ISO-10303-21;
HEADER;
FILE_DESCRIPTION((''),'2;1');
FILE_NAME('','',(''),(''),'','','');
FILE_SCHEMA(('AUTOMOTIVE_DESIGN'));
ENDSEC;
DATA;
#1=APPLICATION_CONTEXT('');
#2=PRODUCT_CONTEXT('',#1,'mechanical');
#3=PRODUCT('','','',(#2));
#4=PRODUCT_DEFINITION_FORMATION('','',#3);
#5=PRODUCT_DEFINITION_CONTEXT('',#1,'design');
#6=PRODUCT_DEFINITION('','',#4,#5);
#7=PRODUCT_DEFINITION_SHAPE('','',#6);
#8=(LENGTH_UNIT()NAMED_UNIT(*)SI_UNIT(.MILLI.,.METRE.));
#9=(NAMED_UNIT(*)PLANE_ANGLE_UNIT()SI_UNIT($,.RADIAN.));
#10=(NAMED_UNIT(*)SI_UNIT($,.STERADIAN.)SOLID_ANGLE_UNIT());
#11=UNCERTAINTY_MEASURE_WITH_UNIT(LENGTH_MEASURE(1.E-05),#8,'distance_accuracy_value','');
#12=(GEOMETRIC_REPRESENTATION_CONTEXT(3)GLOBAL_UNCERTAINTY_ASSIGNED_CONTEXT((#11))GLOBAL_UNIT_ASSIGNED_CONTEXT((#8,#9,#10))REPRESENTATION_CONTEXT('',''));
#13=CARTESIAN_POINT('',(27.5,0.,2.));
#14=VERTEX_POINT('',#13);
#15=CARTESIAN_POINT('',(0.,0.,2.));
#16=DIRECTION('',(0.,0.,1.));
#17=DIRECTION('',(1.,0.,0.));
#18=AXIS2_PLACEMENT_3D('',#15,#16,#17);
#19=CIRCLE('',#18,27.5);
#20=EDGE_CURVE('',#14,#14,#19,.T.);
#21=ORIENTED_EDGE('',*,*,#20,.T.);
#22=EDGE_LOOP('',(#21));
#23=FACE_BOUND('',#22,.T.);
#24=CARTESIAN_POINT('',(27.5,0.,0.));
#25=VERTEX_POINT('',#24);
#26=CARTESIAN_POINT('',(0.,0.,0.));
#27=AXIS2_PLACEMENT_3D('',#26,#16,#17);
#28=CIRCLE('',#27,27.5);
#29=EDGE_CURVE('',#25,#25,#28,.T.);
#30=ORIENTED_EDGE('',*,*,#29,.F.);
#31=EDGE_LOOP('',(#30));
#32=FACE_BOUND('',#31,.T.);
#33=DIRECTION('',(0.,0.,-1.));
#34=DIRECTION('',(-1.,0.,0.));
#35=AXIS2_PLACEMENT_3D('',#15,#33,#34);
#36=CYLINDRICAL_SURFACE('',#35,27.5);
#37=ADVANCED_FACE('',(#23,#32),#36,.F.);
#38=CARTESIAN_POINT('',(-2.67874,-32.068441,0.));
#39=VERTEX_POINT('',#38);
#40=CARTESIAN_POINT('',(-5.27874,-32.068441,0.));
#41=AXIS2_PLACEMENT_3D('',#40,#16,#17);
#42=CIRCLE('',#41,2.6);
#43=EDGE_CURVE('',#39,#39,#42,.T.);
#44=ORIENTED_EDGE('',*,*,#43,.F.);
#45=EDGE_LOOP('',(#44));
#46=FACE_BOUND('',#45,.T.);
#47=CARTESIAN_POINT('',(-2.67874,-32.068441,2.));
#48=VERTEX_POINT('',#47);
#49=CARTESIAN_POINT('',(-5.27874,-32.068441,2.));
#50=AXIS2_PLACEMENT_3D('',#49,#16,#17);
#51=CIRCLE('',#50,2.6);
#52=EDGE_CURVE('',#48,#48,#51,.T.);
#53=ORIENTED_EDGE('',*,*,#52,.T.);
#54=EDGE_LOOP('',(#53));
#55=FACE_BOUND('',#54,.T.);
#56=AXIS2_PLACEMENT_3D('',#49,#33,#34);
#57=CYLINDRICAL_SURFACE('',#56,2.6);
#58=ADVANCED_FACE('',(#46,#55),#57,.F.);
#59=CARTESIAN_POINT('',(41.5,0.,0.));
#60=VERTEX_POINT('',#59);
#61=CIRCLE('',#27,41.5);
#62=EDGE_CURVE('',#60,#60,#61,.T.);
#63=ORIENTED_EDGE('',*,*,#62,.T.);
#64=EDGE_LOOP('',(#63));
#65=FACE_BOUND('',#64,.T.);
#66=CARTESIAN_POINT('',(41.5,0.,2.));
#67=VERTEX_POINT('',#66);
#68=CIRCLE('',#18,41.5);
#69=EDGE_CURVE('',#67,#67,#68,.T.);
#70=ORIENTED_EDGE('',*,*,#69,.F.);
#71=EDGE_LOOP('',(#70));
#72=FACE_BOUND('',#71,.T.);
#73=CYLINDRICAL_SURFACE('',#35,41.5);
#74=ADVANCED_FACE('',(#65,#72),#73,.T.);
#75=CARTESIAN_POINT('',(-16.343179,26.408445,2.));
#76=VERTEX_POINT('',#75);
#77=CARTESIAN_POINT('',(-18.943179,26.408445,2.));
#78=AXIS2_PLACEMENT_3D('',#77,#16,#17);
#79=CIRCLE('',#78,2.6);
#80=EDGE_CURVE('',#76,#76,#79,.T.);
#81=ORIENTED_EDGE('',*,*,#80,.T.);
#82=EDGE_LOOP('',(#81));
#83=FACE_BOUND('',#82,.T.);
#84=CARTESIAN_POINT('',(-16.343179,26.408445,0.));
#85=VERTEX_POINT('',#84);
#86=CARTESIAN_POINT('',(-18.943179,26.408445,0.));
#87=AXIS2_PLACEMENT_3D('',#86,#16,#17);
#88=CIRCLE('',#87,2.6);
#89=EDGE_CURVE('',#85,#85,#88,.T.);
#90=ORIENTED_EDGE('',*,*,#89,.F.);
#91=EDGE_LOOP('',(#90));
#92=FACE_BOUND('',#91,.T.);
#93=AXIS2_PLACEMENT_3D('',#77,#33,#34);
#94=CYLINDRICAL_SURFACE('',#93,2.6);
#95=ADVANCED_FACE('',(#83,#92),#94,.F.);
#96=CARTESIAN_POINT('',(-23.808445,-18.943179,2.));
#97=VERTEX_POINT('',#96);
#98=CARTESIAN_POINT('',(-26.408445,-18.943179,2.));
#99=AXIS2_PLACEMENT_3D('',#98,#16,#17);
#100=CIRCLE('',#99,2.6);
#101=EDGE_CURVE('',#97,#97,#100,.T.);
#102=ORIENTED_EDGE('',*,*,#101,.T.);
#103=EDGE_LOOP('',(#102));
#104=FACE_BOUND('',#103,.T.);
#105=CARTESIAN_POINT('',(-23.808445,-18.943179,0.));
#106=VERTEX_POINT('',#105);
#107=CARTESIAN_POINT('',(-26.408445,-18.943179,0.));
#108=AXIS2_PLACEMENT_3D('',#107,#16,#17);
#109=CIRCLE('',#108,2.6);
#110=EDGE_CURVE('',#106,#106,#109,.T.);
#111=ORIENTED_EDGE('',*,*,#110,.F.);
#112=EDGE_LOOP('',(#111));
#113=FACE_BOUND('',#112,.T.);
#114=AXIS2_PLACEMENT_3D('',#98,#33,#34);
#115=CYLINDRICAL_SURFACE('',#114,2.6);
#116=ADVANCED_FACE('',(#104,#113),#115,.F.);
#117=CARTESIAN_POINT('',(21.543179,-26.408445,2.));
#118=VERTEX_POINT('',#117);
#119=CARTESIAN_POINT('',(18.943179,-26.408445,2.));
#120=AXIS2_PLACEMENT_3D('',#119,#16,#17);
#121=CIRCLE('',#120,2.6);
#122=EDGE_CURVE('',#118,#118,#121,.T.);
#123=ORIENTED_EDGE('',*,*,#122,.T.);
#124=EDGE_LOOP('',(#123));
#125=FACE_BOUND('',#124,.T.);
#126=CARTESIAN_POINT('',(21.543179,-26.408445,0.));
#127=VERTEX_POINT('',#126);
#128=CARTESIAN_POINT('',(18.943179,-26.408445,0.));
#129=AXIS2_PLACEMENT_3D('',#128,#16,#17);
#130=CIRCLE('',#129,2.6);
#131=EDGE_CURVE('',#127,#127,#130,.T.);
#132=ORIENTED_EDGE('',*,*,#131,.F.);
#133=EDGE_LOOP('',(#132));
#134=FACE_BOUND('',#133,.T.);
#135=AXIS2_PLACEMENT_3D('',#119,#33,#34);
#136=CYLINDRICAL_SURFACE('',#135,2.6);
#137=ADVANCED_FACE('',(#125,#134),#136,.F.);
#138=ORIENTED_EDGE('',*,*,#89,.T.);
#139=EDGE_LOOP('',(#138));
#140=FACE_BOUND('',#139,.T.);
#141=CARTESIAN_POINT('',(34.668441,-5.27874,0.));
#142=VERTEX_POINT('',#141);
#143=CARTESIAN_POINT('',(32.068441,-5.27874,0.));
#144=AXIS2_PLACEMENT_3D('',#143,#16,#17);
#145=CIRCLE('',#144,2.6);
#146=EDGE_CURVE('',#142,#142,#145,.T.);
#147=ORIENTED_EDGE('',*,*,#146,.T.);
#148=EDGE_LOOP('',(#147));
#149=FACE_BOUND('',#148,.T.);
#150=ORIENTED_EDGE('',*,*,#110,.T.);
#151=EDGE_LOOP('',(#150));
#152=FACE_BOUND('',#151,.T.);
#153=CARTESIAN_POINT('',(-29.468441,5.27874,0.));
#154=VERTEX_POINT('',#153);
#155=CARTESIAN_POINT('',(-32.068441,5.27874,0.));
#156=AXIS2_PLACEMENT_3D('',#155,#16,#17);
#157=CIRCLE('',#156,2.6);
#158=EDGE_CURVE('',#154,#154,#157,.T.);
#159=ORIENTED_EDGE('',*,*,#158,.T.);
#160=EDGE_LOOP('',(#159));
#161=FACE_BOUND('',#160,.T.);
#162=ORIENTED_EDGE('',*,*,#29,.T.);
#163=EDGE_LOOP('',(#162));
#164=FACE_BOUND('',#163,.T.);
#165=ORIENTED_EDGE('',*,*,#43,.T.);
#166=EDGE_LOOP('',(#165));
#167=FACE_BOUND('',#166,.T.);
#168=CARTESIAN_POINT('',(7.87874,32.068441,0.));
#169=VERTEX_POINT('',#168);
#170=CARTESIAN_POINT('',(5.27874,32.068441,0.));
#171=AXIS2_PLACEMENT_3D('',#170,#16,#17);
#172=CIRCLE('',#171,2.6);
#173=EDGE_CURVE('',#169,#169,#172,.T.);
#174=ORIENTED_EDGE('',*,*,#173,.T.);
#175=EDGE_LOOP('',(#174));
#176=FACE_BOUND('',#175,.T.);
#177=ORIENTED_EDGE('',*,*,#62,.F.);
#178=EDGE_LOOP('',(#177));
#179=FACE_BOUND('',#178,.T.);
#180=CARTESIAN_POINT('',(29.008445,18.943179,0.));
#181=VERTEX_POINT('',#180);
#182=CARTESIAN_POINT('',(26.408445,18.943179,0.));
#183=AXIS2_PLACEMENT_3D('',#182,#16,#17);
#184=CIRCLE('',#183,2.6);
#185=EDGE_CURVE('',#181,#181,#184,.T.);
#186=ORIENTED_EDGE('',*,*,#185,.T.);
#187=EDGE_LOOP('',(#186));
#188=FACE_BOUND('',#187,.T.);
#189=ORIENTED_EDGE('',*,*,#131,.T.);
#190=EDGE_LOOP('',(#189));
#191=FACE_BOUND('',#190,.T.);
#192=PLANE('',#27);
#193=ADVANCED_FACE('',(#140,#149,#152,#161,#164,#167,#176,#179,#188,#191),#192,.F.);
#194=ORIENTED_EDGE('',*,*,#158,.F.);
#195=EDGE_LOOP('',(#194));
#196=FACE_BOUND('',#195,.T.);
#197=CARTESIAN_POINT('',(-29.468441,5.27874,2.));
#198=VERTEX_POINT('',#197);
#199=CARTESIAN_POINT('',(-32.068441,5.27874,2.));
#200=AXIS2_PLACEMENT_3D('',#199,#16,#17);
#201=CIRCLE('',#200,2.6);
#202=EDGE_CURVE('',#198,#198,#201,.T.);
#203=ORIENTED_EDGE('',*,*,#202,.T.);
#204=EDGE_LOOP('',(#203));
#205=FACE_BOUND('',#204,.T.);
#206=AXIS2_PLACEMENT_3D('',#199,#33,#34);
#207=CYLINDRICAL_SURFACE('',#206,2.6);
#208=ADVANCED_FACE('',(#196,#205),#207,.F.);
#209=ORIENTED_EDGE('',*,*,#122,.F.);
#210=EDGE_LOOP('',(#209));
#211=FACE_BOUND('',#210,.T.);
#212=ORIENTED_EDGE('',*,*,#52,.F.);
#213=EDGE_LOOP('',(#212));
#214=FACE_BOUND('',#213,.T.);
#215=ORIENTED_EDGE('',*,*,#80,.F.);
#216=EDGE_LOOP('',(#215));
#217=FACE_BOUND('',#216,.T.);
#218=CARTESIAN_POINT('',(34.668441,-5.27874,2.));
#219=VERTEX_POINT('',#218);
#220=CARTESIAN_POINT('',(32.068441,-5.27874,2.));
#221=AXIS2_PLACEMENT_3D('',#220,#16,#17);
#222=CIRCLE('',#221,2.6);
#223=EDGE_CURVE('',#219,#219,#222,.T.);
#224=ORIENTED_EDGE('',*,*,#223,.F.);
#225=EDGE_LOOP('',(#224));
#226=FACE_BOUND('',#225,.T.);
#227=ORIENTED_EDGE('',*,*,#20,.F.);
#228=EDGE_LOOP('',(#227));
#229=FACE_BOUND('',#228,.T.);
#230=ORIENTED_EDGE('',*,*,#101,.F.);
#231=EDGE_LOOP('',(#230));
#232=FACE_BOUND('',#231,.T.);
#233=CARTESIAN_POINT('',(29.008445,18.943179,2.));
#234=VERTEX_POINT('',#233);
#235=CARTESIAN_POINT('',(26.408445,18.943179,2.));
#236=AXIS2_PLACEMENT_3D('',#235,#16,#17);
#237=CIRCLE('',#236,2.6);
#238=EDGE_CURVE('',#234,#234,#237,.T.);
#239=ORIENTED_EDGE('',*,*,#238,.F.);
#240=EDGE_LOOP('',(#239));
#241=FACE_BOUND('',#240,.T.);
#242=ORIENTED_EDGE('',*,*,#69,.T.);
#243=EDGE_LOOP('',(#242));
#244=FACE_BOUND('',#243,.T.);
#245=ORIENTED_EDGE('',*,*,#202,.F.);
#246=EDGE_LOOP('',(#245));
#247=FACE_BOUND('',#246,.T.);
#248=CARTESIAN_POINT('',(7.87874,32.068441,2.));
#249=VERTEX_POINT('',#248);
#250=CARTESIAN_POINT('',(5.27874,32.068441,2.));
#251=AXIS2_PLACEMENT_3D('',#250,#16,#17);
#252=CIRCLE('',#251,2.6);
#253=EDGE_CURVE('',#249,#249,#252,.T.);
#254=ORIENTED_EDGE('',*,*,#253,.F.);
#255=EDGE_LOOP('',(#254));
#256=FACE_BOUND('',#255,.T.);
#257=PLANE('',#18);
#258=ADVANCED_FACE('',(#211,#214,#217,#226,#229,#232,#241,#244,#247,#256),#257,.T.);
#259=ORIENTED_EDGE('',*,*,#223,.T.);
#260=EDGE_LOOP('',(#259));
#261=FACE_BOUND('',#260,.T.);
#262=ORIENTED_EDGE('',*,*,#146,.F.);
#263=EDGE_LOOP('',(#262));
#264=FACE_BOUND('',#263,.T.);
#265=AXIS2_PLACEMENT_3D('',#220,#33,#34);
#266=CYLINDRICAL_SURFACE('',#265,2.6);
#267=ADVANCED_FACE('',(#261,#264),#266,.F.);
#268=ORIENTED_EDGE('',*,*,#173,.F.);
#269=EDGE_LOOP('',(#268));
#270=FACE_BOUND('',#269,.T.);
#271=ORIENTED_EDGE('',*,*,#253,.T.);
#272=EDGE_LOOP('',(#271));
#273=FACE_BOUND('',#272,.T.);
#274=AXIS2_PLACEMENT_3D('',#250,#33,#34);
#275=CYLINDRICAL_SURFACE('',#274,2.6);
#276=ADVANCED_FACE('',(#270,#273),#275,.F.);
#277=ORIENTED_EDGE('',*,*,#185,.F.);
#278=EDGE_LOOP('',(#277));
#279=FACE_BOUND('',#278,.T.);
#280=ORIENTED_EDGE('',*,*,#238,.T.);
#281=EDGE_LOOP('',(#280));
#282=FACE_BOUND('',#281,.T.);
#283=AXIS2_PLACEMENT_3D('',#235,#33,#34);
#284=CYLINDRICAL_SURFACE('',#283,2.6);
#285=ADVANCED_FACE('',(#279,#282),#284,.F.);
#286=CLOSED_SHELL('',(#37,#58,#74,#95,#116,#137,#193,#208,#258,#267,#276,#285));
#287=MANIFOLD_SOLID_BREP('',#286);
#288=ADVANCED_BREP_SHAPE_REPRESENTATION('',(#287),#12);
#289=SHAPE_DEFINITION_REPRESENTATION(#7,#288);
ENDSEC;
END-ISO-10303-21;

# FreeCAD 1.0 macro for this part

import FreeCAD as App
import Part
import Sketcher

V = App.Vector
Q = App.Units.Quantity

doc = App.newDocument("Part")
body = doc.addObject("PartDesign::Body", "Body")

# Sketch on XY plane
sketch1 = body.newObject("Sketcher::SketchObject", "Sketch")
sketch1.AttachmentSupport = (doc.getObject("XY_Plane"), [""])
sketch1.MapMode = "FlatFace"
sketch1.addGeometry([
    Part.Circle(V(0, 0, 0), V(0, 0, 1), 41.5),  # 0
    Part.Circle(V(-26.408445, -18.943179, 0), V(0, 0, 1), 2.6),  # 1
    Part.Circle(V(-5.27874, -32.068441, 0), V(0, 0, 1), 2.6),  # 2
    Part.Circle(V(18.943179, -26.408445, 0), V(0, 0, 1), 2.6),  # 3
    Part.Circle(V(0, 0, 0), V(0, 0, 1), 27.5),  # 4
    Part.Circle(V(32.068441, -5.27874, 0), V(0, 0, 1), 2.6),  # 5
    Part.Circle(V(-32.068441, 5.27874, 0), V(0, 0, 1), 2.6),  # 6
    Part.Circle(V(-18.943179, 26.408445, 0), V(0, 0, 1), 2.6),  # 7
    Part.Circle(V(5.27874, 32.068441, 0), V(0, 0, 1), 2.6),  # 8
    Part.Circle(V(26.408445, 18.943179, 0), V(0, 0, 1), 2.6),  # 9
], False)
sketch1.addConstraint([
    Sketcher.Constraint("Coincident", 0, 3, -1, 1),
    Sketcher.Constraint("Coincident", 4, 3, -1, 1),
    Sketcher.Constraint("Equal", 1, 2),
    Sketcher.Constraint("Equal", 2, 3),
    Sketcher.Constraint("Equal", 3, 5),
    Sketcher.Constraint("Equal", 5, 6),
    Sketcher.Constraint("Equal", 6, 7),
    Sketcher.Constraint("Equal", 7, 8),
    Sketcher.Constraint("Equal", 8, 9),
    Sketcher.Constraint("Symmetric", 5, 3, 6, 3, -1, 1),
    Sketcher.Constraint("Symmetric", 3, 3, 7, 3, -1, 1),
    Sketcher.Constraint("Symmetric", 2, 3, 8, 3, -1, 1),
    Sketcher.Constraint("Symmetric", 1, 3, 9, 3, -1, 1),
    Sketcher.Constraint("Diameter", 0, Q("83 mm")),
    Sketcher.Constraint("Diameter", 4, Q("55 mm")),
    Sketcher.Constraint("Diameter", 1, Q("5.2 mm")),
    Sketcher.Constraint("DistanceY", 2, 3, 5, 3, Q("26.789701 mm")),
    Sketcher.Constraint("DistanceX", 6, 3, 2, 3, Q("26.789701 mm")),
    Sketcher.Constraint("DistanceY", 1, 3, -1, 1, Q("18.943179 mm")),
    Sketcher.Constraint("DistanceX", 2, 3, -1, 1, Q("5.27874 mm")),
    Sketcher.Constraint("DistanceY", 2, 3, -1, 1, Q("32.068441 mm")),
    Sketcher.Constraint("DistanceX", -1, 1, 3, 3, Q("18.943179 mm")),
    Sketcher.Constraint("DistanceX", 1, 3, -1, 1, Q("26.408445 mm")),
    Sketcher.Constraint("DistanceY", 3, 3, -1, 1, Q("26.408445 mm")),
])
pad1 = body.newObject("PartDesign::Pad", "Pad")
pad1.Profile = sketch1
pad1.Length = 2

doc.recompute()
